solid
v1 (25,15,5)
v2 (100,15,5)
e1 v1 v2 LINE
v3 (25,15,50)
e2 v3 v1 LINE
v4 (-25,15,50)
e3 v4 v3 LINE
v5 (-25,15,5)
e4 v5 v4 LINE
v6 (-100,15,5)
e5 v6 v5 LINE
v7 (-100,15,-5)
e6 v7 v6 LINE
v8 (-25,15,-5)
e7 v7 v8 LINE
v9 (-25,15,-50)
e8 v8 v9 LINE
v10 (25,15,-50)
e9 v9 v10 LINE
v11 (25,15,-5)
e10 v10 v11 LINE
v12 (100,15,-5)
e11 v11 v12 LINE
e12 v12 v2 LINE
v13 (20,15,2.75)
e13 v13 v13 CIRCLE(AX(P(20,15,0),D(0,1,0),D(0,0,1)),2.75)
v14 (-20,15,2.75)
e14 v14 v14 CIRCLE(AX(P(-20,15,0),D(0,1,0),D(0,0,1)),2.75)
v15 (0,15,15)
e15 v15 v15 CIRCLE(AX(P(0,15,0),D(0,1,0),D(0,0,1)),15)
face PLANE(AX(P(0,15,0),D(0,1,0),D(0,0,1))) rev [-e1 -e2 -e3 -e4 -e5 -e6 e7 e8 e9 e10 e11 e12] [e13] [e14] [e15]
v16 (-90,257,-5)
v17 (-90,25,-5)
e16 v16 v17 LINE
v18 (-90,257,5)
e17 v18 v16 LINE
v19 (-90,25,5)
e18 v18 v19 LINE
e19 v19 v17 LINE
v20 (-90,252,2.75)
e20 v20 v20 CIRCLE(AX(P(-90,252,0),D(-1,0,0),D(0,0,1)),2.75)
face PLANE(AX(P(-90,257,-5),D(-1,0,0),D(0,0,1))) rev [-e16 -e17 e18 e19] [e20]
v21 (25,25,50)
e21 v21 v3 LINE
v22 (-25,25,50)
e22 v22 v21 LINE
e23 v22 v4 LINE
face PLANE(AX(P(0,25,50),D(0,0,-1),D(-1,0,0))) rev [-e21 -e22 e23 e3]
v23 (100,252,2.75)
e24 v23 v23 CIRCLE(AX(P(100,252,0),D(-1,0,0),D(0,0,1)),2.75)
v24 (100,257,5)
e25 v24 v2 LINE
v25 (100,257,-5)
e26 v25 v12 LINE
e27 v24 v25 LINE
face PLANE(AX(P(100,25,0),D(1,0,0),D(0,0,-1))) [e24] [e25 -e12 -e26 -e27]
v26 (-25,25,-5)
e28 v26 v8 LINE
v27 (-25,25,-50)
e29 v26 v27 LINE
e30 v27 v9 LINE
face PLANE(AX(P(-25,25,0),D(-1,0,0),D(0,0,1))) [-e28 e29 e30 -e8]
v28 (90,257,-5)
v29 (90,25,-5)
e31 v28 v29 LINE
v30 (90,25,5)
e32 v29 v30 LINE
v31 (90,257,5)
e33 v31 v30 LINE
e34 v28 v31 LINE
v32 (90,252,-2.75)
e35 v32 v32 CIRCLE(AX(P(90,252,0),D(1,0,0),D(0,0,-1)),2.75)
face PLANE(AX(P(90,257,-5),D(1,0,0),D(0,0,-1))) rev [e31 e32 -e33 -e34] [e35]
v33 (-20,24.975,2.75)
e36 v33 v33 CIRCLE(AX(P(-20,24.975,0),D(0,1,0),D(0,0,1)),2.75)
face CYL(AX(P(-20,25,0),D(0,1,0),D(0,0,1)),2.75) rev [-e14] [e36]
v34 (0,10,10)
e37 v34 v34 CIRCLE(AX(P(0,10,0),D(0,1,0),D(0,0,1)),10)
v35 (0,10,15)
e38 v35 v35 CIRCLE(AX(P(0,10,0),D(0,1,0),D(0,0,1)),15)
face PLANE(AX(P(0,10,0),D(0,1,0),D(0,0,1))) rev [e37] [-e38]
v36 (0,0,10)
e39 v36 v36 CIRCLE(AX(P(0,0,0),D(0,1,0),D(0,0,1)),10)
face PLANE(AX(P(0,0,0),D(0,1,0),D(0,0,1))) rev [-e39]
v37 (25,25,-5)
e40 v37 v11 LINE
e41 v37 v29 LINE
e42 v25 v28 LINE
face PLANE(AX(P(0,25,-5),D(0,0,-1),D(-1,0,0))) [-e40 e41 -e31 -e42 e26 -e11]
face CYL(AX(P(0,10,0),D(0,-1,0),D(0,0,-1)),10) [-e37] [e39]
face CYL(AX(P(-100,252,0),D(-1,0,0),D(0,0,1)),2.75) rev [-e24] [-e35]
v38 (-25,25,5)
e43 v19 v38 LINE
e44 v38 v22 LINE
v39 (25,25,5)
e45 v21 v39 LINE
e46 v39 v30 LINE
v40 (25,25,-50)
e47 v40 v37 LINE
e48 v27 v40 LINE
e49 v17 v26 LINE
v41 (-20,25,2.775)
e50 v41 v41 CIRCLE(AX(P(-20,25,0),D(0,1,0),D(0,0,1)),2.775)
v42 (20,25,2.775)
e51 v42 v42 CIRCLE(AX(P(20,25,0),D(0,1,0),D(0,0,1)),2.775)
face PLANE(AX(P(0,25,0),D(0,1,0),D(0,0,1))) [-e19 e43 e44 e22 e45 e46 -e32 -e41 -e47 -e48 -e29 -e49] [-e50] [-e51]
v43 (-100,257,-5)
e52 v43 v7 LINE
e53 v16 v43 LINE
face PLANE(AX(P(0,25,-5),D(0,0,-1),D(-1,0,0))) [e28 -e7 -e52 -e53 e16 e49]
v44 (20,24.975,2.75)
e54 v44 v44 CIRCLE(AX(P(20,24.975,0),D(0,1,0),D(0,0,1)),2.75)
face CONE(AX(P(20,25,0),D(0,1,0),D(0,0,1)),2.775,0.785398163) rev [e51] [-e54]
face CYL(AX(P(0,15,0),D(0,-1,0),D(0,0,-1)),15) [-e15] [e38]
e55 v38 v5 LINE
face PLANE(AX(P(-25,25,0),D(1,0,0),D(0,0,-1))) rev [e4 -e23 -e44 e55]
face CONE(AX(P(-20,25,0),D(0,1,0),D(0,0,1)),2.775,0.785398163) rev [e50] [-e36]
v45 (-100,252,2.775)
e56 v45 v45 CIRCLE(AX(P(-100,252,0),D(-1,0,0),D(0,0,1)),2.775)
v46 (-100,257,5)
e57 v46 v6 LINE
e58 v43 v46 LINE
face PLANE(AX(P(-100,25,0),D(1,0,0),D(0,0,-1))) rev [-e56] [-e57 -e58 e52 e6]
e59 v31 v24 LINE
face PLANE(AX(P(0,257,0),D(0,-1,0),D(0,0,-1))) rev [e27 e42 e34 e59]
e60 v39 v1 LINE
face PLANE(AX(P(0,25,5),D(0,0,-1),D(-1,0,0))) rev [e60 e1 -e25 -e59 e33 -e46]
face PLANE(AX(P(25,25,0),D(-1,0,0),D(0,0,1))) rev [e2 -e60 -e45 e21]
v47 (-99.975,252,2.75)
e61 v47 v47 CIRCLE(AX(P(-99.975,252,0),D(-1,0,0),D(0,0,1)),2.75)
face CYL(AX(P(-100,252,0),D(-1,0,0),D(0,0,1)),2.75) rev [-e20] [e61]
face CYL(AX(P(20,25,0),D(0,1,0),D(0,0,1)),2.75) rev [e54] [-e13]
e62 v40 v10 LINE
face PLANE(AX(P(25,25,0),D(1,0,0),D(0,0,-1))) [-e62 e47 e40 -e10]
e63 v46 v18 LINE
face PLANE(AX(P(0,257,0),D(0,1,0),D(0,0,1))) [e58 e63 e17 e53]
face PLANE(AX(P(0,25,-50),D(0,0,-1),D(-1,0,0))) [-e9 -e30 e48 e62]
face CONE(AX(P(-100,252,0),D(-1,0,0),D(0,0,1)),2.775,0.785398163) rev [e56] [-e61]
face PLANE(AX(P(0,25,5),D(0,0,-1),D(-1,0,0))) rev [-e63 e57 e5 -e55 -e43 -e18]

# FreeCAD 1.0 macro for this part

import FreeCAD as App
import Part
import Sketcher
from FreeCAD import Vector
Q = App.Units.Quantity


def add_polygon(sketch, points):
    """Adds a closed chain of lines whose ends are joined by coincident constraints."""
    first, n = sketch.GeometryCount, len(points)
    for a, b in zip(points, points[1:] + points[:1]):
        sketch.addGeometry(Part.LineSegment(App.Vector(*a, 0), App.Vector(*b, 0)), False)
    for i in range(n):
        sketch.addConstraint(Sketcher.Constraint("Coincident", first + i, 2, first + (i + 1) % n, 1))

doc = App.newDocument("Part")
body = doc.addObject("PartDesign::Body", "Body")

sketch1 = body.newObject("Sketcher::SketchObject", "Sketch")
sketch1.AttachmentSupport = (doc.getObject("XZ_Plane"), [""])
sketch1.MapMode = "FlatFace"
sketch1.addGeometry(Part.Circle(Vector(0, 0, 0), Vector(0, 0, 1), 10), False)
sketch1.addConstraint([
    Sketcher.Constraint("Coincident", 0, 3, -1, 1),
    Sketcher.Constraint("Diameter", 0, Q("20 mm")),
])
pad1 = body.newObject("PartDesign::Pad", "Pad")
pad1.Profile = sketch1
pad1.Length = 10
pad1.Reversed = True

sketch2 = body.newObject("Sketcher::SketchObject", "Sketch001")
sketch2.AttachmentSupport = (doc.getObject("XZ_Plane"), [""])
sketch2.MapMode = "FlatFace"
sketch2.AttachmentOffset = App.Placement(Vector(0, 0, -10), App.Rotation())
sketch2.addGeometry(Part.Circle(Vector(0, 0, 0), Vector(0, 0, 1), 15), False)
sketch2.addConstraint([
    Sketcher.Constraint("Coincident", 0, 3, -1, 1),
    Sketcher.Constraint("Diameter", 0, Q("30 mm")),
])
pad2 = body.newObject("PartDesign::Pad", "Pad001")
pad2.Profile = sketch2
pad2.Length = 5
pad2.Reversed = True

sketch3 = body.newObject("Sketcher::SketchObject", "Sketch002")
sketch3.AttachmentSupport = (doc.getObject("XZ_Plane"), [""])
sketch3.MapMode = "FlatFace"
sketch3.AttachmentOffset = App.Placement(Vector(0, 0, -15), App.Rotation())
add_polygon(sketch3, [(-25, -50), (-25, -5), (-100, -5), (-100, 5), (-25, 5), (-25, 50), (25, 50), (25, 5), (100, 5), (100, -5), (25, -5), (25, -50)])
sketch3.addConstraint([
    Sketcher.Constraint("Vertical", 0),
    Sketcher.Constraint("Horizontal", 1),
    Sketcher.Constraint("Vertical", 2),
    Sketcher.Constraint("Horizontal", 3),
    Sketcher.Constraint("Vertical", 4),
    Sketcher.Constraint("Horizontal", 5),
    Sketcher.Constraint("Vertical", 6),
    Sketcher.Constraint("Horizontal", 7),
    Sketcher.Constraint("Vertical", 8),
    Sketcher.Constraint("Horizontal", 9),
    Sketcher.Constraint("Vertical", 10),
    Sketcher.Constraint("Horizontal", 11),
    Sketcher.Constraint("Symmetric", 0, 2, 6, 2, -1, 1),
    Sketcher.Constraint("Symmetric", 2, 2, 8, 2, -1, 1),
    Sketcher.Constraint("Symmetric", 4, 2, 10, 2, -1, 1),
    Sketcher.Constraint("Symmetric", 3, 2, 6, 2, -2),
    Sketcher.Constraint("DistanceX", 1, 2, 1, 1, Q("75 mm")),
    Sketcher.Constraint("DistanceX", 5, 1, 5, 2, Q("50 mm")),
    Sketcher.Constraint("DistanceY", 0, 1, 0, 2, Q("45 mm")),
    Sketcher.Constraint("DistanceY", 2, 1, 2, 2, Q("10 mm")),
])
pad3 = body.newObject("PartDesign::Pad", "Pad002")
pad3.Profile = sketch3
pad3.Length = 10
pad3.Reversed = True

sketch4 = body.newObject("Sketcher::SketchObject", "Sketch003")
sketch4.AttachmentSupport = (doc.getObject("XZ_Plane"), [""])
sketch4.MapMode = "FlatFace"
sketch4.AttachmentOffset = App.Placement(Vector(0, 0, -25), App.Rotation())
add_polygon(sketch4, [(-100, -5), (-100, 5), (-90, 5), (-90, -5)])
add_polygon(sketch4, [(90, -5), (90, 5), (100, 5), (100, -5)])
sketch4.addConstraint([
    Sketcher.Constraint("Vertical", 0),
    Sketcher.Constraint("Horizontal", 1),
    Sketcher.Constraint("Vertical", 2),
    Sketcher.Constraint("Horizontal", 3),
    Sketcher.Constraint("Vertical", 4),
    Sketcher.Constraint("Horizontal", 5),
    Sketcher.Constraint("Vertical", 6),
    Sketcher.Constraint("Horizontal", 7),
    Sketcher.Constraint("Symmetric", 2, 2, 4, 2, -1, 1),
    Sketcher.Constraint("Symmetric", 0, 2, 6, 2, -1, 1),
    Sketcher.Constraint("Horizontal", 1, 2, 4, 2),
    Sketcher.Constraint("Equal", 7, 0),
    Sketcher.Constraint("DistanceX", 1, 1, 1, 2, Q("10 mm")),
    Sketcher.Constraint("DistanceX", 0, 2, -1, 1, Q("100 mm")),
])
pad4 = body.newObject("PartDesign::Pad", "Pad003")
pad4.Profile = sketch4
pad4.Length = 232
pad4.Reversed = True

sketch5 = body.newObject("Sketcher::SketchObject", "Sketch004")
sketch5.AttachmentSupport = (doc.getObject("YZ_Plane"), [""])
sketch5.MapMode = "FlatFace"
sketch5.AttachmentOffset = App.Placement(Vector(0, 0, -100), App.Rotation())
sketch5.addGeometry(Part.Circle(Vector(252, 0, 0), Vector(0, 0, 1), 2.8), False)
sketch5.addConstraint([
    Sketcher.Constraint("PointOnObject", 0, 3, -1),
    Sketcher.Constraint("Diameter", 0, Q("5.5 mm")),
    Sketcher.Constraint("DistanceX", -1, 1, 0, 3, Q("252 mm")),
])
doc.recompute()
hole = body.newObject("PartDesign::Hole", "Hole")
hole.Profile = sketch5
hole.ThreadType = "None"
hole.Diameter = 5.5
hole.DepthType = "ThroughAll"
hole.HoleCutType = "Countersink"
hole.HoleCutDiameter = 5.55
hole.HoleCutCountersinkAngle = 90
hole.Reversed = True

sketch6 = body.newObject("Sketcher::SketchObject", "Sketch005")
sketch6.AttachmentSupport = (doc.getObject("XZ_Plane"), [""])
sketch6.MapMode = "FlatFace"
sketch6.AttachmentOffset = App.Placement(Vector(0, 0, -25), App.Rotation())
sketch6.addGeometry([
    Part.Circle(Vector(-20, 0, 0), Vector(0, 0, 1), 2.8),
    Part.Circle(Vector(20, 0, 0), Vector(0, 0, 1), 2.8),
], False)
sketch6.addConstraint([
    Sketcher.Constraint("Equal", 0, 1),
    Sketcher.Constraint("Symmetric", 0, 3, 1, 3, -1, 1),
    Sketcher.Constraint("PointOnObject", 0, 3, -1),
    Sketcher.Constraint("Diameter", 0, Q("5.5 mm")),
    Sketcher.Constraint("DistanceX", 0, 3, -1, 1, Q("20 mm")),
])
doc.recompute()
hole2 = body.newObject("PartDesign::Hole", "Hole001")
hole2.Profile = sketch6
hole2.ThreadType = "None"
hole2.Diameter = 5.5
hole2.DepthType = "ThroughAll"
hole2.HoleCutType = "Countersink"
hole2.HoleCutDiameter = 5.55
hole2.HoleCutCountersinkAngle = 90
hole2.Reversed = True

doc.recompute()
